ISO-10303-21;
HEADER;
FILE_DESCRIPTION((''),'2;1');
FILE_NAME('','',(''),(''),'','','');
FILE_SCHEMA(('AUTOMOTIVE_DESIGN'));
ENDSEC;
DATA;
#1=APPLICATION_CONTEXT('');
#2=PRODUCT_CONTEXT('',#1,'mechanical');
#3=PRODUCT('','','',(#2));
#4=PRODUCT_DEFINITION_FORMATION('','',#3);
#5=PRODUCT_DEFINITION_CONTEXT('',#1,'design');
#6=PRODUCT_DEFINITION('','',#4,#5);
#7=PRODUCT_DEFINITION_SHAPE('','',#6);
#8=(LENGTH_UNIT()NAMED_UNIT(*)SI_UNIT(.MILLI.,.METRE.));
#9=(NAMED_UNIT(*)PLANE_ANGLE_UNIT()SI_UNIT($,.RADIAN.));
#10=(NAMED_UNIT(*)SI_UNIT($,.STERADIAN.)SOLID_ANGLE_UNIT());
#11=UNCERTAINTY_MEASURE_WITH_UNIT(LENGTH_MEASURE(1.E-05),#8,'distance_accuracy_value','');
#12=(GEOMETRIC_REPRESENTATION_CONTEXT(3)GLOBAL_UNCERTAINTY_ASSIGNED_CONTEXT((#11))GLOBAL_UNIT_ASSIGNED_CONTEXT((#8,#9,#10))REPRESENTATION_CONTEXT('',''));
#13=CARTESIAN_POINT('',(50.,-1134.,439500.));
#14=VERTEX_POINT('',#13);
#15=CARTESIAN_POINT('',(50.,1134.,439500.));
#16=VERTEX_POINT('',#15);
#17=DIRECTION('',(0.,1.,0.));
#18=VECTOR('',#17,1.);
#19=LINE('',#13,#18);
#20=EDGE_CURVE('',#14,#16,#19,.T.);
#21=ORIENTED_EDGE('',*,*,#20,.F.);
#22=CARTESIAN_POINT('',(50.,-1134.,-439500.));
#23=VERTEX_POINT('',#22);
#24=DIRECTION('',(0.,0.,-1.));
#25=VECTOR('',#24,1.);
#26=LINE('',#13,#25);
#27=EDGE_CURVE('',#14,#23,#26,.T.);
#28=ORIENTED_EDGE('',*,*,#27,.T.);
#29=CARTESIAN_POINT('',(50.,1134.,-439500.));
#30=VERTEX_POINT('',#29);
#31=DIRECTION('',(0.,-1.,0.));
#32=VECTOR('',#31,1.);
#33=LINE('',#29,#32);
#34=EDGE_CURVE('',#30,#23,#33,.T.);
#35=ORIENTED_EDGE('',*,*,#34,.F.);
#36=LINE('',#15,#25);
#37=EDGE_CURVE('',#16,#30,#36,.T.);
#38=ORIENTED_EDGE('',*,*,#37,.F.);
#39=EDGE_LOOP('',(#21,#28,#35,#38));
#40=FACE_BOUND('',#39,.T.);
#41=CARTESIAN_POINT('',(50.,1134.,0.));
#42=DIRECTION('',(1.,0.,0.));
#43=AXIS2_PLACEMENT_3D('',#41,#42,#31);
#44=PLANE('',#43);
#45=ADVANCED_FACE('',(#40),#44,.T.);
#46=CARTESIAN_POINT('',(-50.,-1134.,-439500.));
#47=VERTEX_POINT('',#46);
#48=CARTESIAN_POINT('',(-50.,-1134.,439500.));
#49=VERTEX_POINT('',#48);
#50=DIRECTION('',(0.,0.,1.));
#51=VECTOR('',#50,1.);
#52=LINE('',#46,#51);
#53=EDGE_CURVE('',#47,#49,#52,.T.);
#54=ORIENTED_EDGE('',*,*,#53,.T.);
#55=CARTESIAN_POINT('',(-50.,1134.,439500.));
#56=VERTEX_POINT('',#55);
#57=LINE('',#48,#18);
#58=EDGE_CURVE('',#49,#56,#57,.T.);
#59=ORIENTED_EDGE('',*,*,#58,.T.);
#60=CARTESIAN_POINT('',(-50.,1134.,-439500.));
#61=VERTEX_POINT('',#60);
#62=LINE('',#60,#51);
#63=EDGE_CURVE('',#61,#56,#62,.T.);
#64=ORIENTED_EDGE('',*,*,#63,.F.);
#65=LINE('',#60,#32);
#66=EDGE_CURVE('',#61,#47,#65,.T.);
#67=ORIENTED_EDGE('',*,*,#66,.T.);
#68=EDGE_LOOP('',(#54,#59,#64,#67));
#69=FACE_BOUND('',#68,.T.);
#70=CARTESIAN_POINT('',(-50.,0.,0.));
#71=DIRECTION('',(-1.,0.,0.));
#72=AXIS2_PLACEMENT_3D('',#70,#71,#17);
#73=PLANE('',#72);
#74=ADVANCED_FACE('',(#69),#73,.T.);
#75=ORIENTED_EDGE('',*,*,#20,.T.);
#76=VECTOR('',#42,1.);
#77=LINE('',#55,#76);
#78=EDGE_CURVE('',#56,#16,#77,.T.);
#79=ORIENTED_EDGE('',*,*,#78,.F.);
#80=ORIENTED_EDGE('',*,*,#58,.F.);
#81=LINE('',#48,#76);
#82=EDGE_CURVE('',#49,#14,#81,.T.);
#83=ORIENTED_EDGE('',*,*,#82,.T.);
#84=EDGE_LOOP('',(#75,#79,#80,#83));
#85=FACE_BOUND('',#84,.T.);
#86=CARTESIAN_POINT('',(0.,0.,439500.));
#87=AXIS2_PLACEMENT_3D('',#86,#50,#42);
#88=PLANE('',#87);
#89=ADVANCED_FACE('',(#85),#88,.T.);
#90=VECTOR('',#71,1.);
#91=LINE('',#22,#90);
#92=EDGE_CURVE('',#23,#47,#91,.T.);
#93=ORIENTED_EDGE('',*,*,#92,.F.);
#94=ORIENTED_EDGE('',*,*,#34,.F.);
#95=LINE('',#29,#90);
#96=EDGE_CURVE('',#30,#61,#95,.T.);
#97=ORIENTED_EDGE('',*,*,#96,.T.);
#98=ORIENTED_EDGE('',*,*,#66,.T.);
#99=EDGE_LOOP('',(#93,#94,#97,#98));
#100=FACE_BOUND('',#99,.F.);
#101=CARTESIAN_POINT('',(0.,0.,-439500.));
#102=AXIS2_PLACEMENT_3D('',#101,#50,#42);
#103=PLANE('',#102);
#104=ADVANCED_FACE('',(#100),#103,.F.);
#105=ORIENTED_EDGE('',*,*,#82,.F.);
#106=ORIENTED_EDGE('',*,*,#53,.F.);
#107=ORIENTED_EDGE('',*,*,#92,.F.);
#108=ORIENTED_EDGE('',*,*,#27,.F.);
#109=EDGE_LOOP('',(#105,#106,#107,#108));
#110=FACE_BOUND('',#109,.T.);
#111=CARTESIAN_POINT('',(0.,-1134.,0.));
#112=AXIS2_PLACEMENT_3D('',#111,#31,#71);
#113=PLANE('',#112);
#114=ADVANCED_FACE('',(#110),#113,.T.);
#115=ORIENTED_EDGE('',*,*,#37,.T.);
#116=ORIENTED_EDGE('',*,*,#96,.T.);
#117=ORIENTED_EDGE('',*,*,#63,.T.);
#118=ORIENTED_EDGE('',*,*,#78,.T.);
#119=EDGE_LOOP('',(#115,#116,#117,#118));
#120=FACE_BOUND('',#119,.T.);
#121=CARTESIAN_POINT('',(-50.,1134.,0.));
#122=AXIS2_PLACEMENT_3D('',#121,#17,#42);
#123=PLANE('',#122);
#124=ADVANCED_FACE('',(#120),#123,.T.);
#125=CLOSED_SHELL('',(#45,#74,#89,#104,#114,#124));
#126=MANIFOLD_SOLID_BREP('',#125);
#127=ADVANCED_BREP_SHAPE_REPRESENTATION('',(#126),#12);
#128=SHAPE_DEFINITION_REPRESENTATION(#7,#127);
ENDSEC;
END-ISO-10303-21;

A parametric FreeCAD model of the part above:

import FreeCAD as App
import Part
import Sketcher


def add_polygon(sketch, points):
    """Adds a closed chain of lines whose ends are joined by coincident constraints."""
    first, n = sketch.GeometryCount, len(points)
    for a, b in zip(points, points[1:] + points[:1]):
        sketch.addGeometry(Part.LineSegment(App.Vector(*a, 0), App.Vector(*b, 0)), False)
    for i in range(n):
        sketch.addConstraint(Sketcher.Constraint("Coincident", first + i, 2, first + (i + 1) % n, 1))

doc = App.newDocument("Part")
body = doc.addObject("PartDesign::Body", "Body")

# Sketch on XY plane
sketch1 = doc.addObject("Sketcher::SketchObject", "Sketch")
body.addObject(sketch1)
sketch1.AttachmentSupport = (doc.XY_Plane, [""])
sketch1.MapMode = "FlatFace"
add_polygon(sketch1, [(-50, 1134), (-50, -1134), (50, -1134), (50, 1134)])  # lines 0-3
sketch1.addConstraint(Sketcher.Constraint("Vertical", 0))
sketch1.addConstraint(Sketcher.Constraint("Horizontal", 1))
sketch1.addConstraint(Sketcher.Constraint("Vertical", 2))
sketch1.addConstraint(Sketcher.Constraint("Horizontal", 3))
sketch1.addConstraint(Sketcher.Constraint("Symmetric", 0, 2, 2, 2, -1, 1))
sketch1.addConstraint(Sketcher.Constraint("DistanceX", 1, 1, 1, 2, 100.0))
sketch1.addConstraint(Sketcher.Constraint("DistanceY", 0, 2, 0, 1, 2268.0))
pad1 = doc.addObject("PartDesign::Pad", "Pad")
body.addObject(pad1)
pad1.Profile = sketch1
pad1.Length = 879000
pad1.Midplane = True

doc.recompute()
